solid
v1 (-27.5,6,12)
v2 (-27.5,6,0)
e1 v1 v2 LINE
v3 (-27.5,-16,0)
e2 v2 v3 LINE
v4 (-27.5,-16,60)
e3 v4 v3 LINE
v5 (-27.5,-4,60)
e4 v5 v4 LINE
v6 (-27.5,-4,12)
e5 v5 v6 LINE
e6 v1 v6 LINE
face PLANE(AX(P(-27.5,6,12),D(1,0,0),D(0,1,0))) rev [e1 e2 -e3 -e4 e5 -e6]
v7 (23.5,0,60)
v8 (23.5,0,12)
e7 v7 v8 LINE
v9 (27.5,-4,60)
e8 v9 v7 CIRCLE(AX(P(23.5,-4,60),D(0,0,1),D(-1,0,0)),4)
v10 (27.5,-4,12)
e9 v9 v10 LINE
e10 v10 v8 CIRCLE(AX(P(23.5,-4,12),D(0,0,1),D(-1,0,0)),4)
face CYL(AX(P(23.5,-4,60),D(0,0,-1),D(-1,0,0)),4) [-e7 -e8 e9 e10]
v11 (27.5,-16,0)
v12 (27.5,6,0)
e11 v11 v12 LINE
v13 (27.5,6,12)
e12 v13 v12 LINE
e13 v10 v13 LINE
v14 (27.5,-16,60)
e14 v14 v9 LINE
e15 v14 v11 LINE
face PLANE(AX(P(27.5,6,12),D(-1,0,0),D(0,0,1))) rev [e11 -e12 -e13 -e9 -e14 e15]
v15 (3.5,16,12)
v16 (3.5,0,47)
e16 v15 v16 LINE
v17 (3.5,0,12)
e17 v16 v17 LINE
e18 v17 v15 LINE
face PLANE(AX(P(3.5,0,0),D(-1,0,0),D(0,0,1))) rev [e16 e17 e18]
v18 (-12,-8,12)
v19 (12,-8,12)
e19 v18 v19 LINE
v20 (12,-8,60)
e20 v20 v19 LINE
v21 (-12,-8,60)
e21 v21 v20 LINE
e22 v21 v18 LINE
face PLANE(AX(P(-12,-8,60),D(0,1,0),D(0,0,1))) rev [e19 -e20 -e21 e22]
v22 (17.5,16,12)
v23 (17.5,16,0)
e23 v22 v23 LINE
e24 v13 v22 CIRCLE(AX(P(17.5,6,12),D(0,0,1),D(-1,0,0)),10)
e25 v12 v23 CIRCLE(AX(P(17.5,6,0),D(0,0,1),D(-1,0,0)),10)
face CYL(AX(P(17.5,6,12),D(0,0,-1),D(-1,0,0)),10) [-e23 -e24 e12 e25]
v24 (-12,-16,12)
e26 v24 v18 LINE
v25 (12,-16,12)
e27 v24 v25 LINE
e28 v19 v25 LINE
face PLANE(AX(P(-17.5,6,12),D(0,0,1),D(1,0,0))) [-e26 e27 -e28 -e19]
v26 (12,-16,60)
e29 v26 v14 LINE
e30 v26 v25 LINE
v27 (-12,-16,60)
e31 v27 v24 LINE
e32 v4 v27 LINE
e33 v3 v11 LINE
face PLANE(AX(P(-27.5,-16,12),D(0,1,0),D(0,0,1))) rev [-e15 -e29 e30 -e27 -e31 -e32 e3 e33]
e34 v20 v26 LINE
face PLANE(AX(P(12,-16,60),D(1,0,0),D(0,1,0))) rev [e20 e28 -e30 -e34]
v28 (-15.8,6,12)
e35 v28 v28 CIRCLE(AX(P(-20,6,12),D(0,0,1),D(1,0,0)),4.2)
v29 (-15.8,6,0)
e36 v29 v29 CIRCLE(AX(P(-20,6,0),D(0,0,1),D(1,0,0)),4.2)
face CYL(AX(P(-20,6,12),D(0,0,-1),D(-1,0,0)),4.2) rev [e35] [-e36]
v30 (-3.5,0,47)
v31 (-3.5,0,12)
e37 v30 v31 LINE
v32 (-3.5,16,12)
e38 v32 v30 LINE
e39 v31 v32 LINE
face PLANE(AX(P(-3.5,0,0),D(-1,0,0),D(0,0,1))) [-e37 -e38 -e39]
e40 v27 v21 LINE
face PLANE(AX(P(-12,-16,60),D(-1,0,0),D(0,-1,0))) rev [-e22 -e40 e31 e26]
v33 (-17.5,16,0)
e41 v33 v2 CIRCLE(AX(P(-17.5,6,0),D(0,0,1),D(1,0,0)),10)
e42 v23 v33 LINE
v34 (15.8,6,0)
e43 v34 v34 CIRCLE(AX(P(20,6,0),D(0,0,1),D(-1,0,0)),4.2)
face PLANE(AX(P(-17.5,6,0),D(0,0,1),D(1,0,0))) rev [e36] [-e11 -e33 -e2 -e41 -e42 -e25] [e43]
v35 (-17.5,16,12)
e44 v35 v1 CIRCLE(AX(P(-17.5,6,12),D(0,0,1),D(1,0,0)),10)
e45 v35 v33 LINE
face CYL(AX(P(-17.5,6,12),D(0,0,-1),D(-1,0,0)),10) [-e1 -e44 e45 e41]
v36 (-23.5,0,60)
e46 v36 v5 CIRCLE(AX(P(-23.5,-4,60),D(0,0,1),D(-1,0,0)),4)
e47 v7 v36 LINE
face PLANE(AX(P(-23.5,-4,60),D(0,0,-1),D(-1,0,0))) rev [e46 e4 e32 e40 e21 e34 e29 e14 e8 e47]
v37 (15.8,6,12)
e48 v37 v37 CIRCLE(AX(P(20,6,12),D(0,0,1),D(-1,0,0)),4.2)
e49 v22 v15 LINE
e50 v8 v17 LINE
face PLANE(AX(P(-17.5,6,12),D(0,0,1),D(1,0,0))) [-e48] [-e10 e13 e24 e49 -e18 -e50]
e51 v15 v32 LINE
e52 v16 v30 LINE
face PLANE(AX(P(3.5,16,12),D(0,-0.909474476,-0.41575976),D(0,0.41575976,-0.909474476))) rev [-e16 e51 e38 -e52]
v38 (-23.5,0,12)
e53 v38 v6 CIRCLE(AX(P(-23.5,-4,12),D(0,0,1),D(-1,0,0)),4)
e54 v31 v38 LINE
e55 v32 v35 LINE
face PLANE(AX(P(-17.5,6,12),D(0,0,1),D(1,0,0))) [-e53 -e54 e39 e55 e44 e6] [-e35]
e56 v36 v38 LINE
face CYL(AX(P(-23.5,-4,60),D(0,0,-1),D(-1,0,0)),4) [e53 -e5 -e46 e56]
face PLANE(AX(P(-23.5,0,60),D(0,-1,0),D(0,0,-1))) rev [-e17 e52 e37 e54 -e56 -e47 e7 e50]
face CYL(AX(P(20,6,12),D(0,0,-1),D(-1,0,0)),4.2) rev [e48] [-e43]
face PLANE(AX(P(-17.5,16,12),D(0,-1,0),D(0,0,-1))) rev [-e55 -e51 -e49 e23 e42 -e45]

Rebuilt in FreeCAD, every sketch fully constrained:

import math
import FreeCAD as App
import Part
import Sketcher

V = App.Vector
Q = App.Units.Quantity


def add_polygon(sketch, points):
    """Adds a closed chain of lines whose ends are joined by coincident constraints."""
    first, n = sketch.GeometryCount, len(points)
    for a, b in zip(points, points[1:] + points[:1]):
        sketch.addGeometry(Part.LineSegment(App.Vector(*a, 0), App.Vector(*b, 0)), False)
    for i in range(n):
        sketch.addConstraint(Sketcher.Constraint("Coincident", first + i, 2, first + (i + 1) % n, 1))

doc = App.newDocument("Part")
body = doc.addObject("PartDesign::Body", "Body")

sketch1 = body.newObject("Sketcher::SketchObject", "Sketch")
sketch1.AttachmentSupport = (doc.getObject("XY_Plane"), [""])
sketch1.MapMode = "FlatFace"
sketch1.addGeometry([
    Part.LineSegment(V(17.5, 16, 0), V(-17.5, 16, 0)),
    Part.ArcOfCircle(Part.Circle(V(-17.5, 6, 0), V(0, 0, 1), 10), math.radians(90), math.radians(180)),
    Part.LineSegment(V(-27.5, 6, 0), V(-27.5, -16, 0)),
    Part.LineSegment(V(-27.5, -16, 0), V(27.5, -16, 0)),
    Part.LineSegment(V(27.5, -16, 0), V(27.5, 6, 0)),
    Part.ArcOfCircle(Part.Circle(V(17.5, 6, 0), V(0, 0, 1), 10), math.radians(0), math.radians(90)),
    Part.Circle(V(20, 6, 0), V(0, 0, 1), 4.2),
    Part.Circle(V(-20, 6, 0), V(0, 0, 1), 4.2),
], False)
sketch1.addConstraint([
    Sketcher.Constraint("Tangent", 0, 2, 1, 1),
    Sketcher.Constraint("Tangent", 1, 2, 2, 1),
    Sketcher.Constraint("Coincident", 2, 2, 3, 1),
    Sketcher.Constraint("Coincident", 3, 2, 4, 1),
    Sketcher.Constraint("Tangent", 4, 2, 5, 1),
    Sketcher.Constraint("Tangent", 5, 2, 0, 1),
    Sketcher.Constraint("Horizontal", 0),
    Sketcher.Constraint("Vertical", 2),
    Sketcher.Constraint("Horizontal", 3),
    Sketcher.Constraint("Vertical", 4),
    Sketcher.Constraint("Equal", 1, 5),
    Sketcher.Constraint("Equal", 6, 7),
    Sketcher.Constraint("Symmetric", 6, 3, 7, 3, -2),
    Sketcher.Constraint("Horizontal", 5, 3, 6, 3),
    Sketcher.Constraint("Radius", 1, Q("10 mm")),
    Sketcher.Constraint("Diameter", 6, Q("8.4 mm")),
    Sketcher.Constraint("DistanceX", 0, 2, 0, 1, Q("35 mm")),
    Sketcher.Constraint("DistanceY", 2, 2, 2, 1, Q("22 mm")),
    Sketcher.Constraint("DistanceY", -1, 1, 1, 3, Q("6 mm")),
    Sketcher.Constraint("DistanceX", -1, 1, 6, 3, Q("20 mm")),
    Sketcher.Constraint("DistanceX", 1, 3, -1, 1, Q("17.5 mm")),
])
pad1 = body.newObject("PartDesign::Pad", "Pad")
pad1.Profile = sketch1
pad1.Length = 12

sketch2 = body.newObject("Sketcher::SketchObject", "Sketch001")
sketch2.AttachmentSupport = (doc.getObject("XY_Plane"), [""])
sketch2.MapMode = "FlatFace"
sketch2.AttachmentOffset = App.Placement(V(0, 0, 12), App.Rotation())
sketch2.addGeometry([
    Part.LineSegment(V(-27.5, -16, 0), V(-12, -16, 0)),
    Part.LineSegment(V(-12, -16, 0), V(-12, -8, 0)),
    Part.LineSegment(V(-12, -8, 0), V(12, -8, 0)),
    Part.LineSegment(V(12, -8, 0), V(12, -16, 0)),
    Part.LineSegment(V(12, -16, 0), V(27.5, -16, 0)),
    Part.LineSegment(V(27.5, -16, 0), V(27.5, -4, 0)),
    Part.ArcOfCircle(Part.Circle(V(23.5, -4, 0), V(0, 0, 1), 4), math.radians(0), math.radians(90)),
    Part.LineSegment(V(23.5, 0, 0), V(-23.5, 0, 0)),
    Part.ArcOfCircle(Part.Circle(V(-23.5, -4, 0), V(0, 0, 1), 4), math.radians(90), math.radians(180)),
    Part.LineSegment(V(-27.5, -4, 0), V(-27.5, -16, 0)),
], False)
sketch2.addConstraint([
    Sketcher.Constraint("Coincident", 0, 2, 1, 1),
    Sketcher.Constraint("Coincident", 1, 2, 2, 1),
    Sketcher.Constraint("Coincident", 2, 2, 3, 1),
    Sketcher.Constraint("Coincident", 3, 2, 4, 1),
    Sketcher.Constraint("Coincident", 4, 2, 5, 1),
    Sketcher.Constraint("Tangent", 5, 2, 6, 1),
    Sketcher.Constraint("Tangent", 6, 2, 7, 1),
    Sketcher.Constraint("Tangent", 7, 2, 8, 1),
    Sketcher.Constraint("Tangent", 8, 2, 9, 1),
    Sketcher.Constraint("Coincident", 9, 2, 0, 1),
    Sketcher.Constraint("Horizontal", 0),
    Sketcher.Constraint("Vertical", 1),
    Sketcher.Constraint("Horizontal", 2),
    Sketcher.Constraint("Vertical", 3),
    Sketcher.Constraint("Horizontal", 4),
    Sketcher.Constraint("Vertical", 5),
    Sketcher.Constraint("Horizontal", 7),
    Sketcher.Constraint("Vertical", 9),
    Sketcher.Constraint("Equal", 6, 8),
    Sketcher.Constraint("Symmetric", 6, 2, 7, 2, -1, 1),
    Sketcher.Constraint("Symmetric", 0, 2, 3, 2, -2),
    Sketcher.Constraint("Radius", 6, Q("4 mm")),
    Sketcher.Constraint("DistanceX", 2, 1, 2, 2, Q("24 mm")),
    Sketcher.Constraint("DistanceX", 7, 2, 7, 1, Q("47 mm")),
    Sketcher.Constraint("DistanceY", 1, 1, 1, 2, Q("8 mm")),
    Sketcher.Constraint("DistanceY", 5, 1, 5, 2, Q("12 mm")),
])
pad2 = body.newObject("PartDesign::Pad", "Pad001")
pad2.Profile = sketch2
pad2.Length = 48

sketch3 = body.newObject("Sketcher::SketchObject", "Sketch002")
sketch3.AttachmentSupport = (doc.getObject("YZ_Plane"), [""])
sketch3.MapMode = "FlatFace"
add_polygon(sketch3, [(16, 12), (0, 47), (0, 12)])
sketch3.addConstraint([
    Sketcher.Constraint("Vertical", 1),
    Sketcher.Constraint("Horizontal", 2),
    Sketcher.Constraint("PointOnObject", 0, 2, -2),
    Sketcher.Constraint("DistanceX", 2, 1, 2, 2, Q("16 mm")),
    Sketcher.Constraint("DistanceY", 1, 2, 1, 1, Q("35 mm")),
    Sketcher.Constraint("DistanceY", -1, 1, 0, 2, Q("47 mm")),
])
pad3 = body.newObject("PartDesign::Pad", "Pad002")
pad3.Profile = sketch3
pad3.Length = 7
pad3.Midplane = True

doc.recompute()
